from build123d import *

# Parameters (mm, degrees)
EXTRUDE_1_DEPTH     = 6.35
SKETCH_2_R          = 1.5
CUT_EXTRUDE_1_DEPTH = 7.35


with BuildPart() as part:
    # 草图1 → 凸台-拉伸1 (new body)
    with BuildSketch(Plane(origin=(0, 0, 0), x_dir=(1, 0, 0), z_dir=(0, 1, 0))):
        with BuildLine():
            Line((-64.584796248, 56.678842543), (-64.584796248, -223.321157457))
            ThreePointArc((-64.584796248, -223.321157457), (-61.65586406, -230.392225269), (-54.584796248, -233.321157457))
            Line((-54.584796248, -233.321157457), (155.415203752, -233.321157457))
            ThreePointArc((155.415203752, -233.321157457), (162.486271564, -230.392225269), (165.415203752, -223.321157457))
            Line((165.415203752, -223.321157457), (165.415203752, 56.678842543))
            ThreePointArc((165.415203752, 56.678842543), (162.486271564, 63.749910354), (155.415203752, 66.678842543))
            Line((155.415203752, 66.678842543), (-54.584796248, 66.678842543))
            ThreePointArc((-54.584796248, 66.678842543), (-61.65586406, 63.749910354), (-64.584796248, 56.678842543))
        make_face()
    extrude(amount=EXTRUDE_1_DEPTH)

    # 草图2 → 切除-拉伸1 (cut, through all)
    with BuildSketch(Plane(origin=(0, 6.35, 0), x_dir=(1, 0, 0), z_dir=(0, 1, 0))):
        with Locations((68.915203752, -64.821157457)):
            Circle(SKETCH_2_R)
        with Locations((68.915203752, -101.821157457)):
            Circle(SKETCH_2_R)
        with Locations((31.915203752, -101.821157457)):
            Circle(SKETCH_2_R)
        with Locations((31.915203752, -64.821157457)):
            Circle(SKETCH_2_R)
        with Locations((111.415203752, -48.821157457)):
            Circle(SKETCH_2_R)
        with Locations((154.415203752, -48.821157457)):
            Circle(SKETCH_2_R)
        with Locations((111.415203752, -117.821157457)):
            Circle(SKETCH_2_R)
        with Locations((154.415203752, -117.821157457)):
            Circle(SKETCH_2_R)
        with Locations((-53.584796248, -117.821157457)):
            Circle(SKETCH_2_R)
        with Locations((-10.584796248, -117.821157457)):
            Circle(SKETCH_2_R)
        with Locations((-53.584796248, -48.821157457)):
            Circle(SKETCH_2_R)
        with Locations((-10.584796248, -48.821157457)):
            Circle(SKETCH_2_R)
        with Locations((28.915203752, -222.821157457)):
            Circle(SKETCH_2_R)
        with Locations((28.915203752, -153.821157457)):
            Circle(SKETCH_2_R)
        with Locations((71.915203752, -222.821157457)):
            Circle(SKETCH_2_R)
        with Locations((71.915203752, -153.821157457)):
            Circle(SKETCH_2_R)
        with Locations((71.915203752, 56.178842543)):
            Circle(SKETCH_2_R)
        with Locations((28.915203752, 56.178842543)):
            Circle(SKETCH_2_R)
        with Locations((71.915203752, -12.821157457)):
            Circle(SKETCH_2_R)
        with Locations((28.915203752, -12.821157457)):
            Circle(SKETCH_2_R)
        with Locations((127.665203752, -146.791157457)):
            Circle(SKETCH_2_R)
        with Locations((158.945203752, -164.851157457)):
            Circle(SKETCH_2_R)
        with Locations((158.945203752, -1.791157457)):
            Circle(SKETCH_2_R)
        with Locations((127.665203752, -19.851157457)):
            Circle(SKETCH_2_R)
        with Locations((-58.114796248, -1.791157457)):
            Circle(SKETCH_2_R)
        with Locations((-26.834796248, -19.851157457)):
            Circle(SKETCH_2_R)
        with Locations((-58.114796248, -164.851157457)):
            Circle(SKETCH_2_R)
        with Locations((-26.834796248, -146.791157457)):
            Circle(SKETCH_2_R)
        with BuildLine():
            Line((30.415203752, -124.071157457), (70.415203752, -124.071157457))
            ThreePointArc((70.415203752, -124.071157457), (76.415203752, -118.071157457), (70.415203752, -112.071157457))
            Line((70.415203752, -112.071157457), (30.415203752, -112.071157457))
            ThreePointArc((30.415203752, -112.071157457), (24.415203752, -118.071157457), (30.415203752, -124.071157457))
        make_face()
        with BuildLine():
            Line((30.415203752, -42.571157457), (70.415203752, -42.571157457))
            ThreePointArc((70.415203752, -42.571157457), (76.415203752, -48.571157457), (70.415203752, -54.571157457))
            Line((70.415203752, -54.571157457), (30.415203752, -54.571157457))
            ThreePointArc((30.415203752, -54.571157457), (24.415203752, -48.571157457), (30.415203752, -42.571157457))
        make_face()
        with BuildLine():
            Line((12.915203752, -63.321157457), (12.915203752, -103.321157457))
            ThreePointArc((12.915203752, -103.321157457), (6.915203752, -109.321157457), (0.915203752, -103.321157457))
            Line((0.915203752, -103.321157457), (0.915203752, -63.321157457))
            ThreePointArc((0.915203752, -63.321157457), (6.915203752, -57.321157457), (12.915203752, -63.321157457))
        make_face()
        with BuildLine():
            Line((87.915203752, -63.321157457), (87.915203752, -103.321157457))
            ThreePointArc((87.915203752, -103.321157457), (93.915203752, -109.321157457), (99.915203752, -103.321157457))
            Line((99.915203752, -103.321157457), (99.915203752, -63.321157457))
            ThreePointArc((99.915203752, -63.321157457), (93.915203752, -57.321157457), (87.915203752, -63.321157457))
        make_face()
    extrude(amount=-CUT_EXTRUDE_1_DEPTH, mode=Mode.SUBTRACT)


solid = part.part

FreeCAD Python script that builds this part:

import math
import FreeCAD as App
import Part
import Sketcher
from FreeCAD import Vector
Q = App.Units.Quantity

doc = App.newDocument("Part")
body = doc.addObject("PartDesign::Body", "Body")

# Sketch on XZ plane
sketch1 = body.newObject("Sketcher::SketchObject", "Sketch")
sketch1.AttachmentSupport = (doc.getObject("XZ_Plane"), [""])
sketch1.MapMode = "FlatFace"
sketch1.addGeometry([
    Part.LineSegment(Vector(-65, -57, 0), Vector(-65, 223, 0)),  # 0
    Part.ArcOfCircle(Part.Circle(Vector(-55, 223, 0), Vector(0, 0, 1), 10), math.radians(90), math.radians(180)),  # 1
    Part.LineSegment(Vector(-55, 233, 0), Vector(155, 233, 0)),  # 2
    Part.ArcOfCircle(Part.Circle(Vector(155, 223, 0), Vector(0, 0, 1), 10), math.radians(0), math.radians(90)),  # 3
    Part.LineSegment(Vector(165, 223, 0), Vector(165, -57, 0)),  # 4
    Part.ArcOfCircle(Part.Circle(Vector(155, -57, 0), Vector(0, 0, 1), 10), math.radians(-90), math.radians(0)),  # 5
    Part.LineSegment(Vector(155, -67, 0), Vector(-55, -67, 0)),  # 6
    Part.ArcOfCircle(Part.Circle(Vector(-55, -57, 0), Vector(0, 0, 1), 10), math.radians(-180), math.radians(-90)),  # 7
], False)
sketch1.addConstraint([
    Sketcher.Constraint("Tangent", 0, 2, 1, 2),
    Sketcher.Constraint("Tangent", 1, 1, 2, 1),
    Sketcher.Constraint("Tangent", 2, 2, 3, 2),
    Sketcher.Constraint("Tangent", 3, 1, 4, 1),
    Sketcher.Constraint("Tangent", 4, 2, 5, 2),
    Sketcher.Constraint("Tangent", 5, 1, 6, 1),
    Sketcher.Constraint("Tangent", 6, 2, 7, 2),
    Sketcher.Constraint("Tangent", 7, 1, 0, 1),
    Sketcher.Constraint("Vertical", 0),
    Sketcher.Constraint("Horizontal", 2),
    Sketcher.Constraint("Vertical", 4),
    Sketcher.Constraint("Horizontal", 6),
    Sketcher.Constraint("Equal", 1, 3),
    Sketcher.Constraint("Equal", 3, 5),
    Sketcher.Constraint("Equal", 5, 7),
    Sketcher.Constraint("Radius", 1, Q("10 mm")),
    Sketcher.Constraint("DistanceX", 2, 1, 2, 2, Q("210 mm")),
    Sketcher.Constraint("DistanceY", 0, 1, 0, 2, Q("280 mm")),
    Sketcher.Constraint("DistanceX", 1, 3, -1, 1, Q("54.584796 mm")),
    Sketcher.Constraint("DistanceY", -1, 1, 1, 3, Q("223.321157 mm")),
])
pad1 = body.newObject("PartDesign::Pad", "Pad")
pad1.Profile = sketch1
pad1.Length = 6.35
pad1.Reversed = True

# Sketch on XZ plane
sketch2 = body.newObject("Sketcher::SketchObject", "Sketch001")
sketch2.AttachmentSupport = (doc.getObject("XZ_Plane"), [""])
sketch2.MapMode = "FlatFace"
sketch2.AttachmentOffset = App.Placement(Vector(0, 0, -6.35), App.Rotation())
sketch2.addGeometry([
    Part.Circle(Vector(68.9, 64.8, 0), Vector(0, 0, 1), 1.5),  # 0
    Part.Circle(Vector(68.9, 101.8, 0), Vector(0, 0, 1), 1.5),  # 1
    Part.Circle(Vector(31.9, 101.8, 0), Vector(0, 0, 1), 1.5),  # 2
    Part.Circle(Vector(31.9, 64.8, 0), Vector(0, 0, 1), 1.5),  # 3
    Part.Circle(Vector(111.4, 48.8, 0), Vector(0, 0, 1), 1.5),  # 4
    Part.Circle(Vector(154.4, 48.8, 0), Vector(0, 0, 1), 1.5),  # 5
    Part.Circle(Vector(111.4, 117.8, 0), Vector(0, 0, 1), 1.5),  # 6
    Part.Circle(Vector(154.4, 117.8, 0), Vector(0, 0, 1), 1.5),  # 7
    Part.Circle(Vector(-53.6, 117.8, 0), Vector(0, 0, 1), 1.5),  # 8
    Part.Circle(Vector(-10.6, 117.8, 0), Vector(0, 0, 1), 1.5),  # 9
    Part.Circle(Vector(-53.6, 48.8, 0), Vector(0, 0, 1), 1.5),  # 10
    Part.Circle(Vector(-10.6, 48.8, 0), Vector(0, 0, 1), 1.5),  # 11
    Part.Circle(Vector(28.9, 222.8, 0), Vector(0, 0, 1), 1.5),  # 12
    Part.Circle(Vector(28.9, 153.8, 0), Vector(0, 0, 1), 1.5),  # 13
    Part.Circle(Vector(71.9, 222.8, 0), Vector(0, 0, 1), 1.5),  # 14
    Part.Circle(Vector(71.9, 153.8, 0), Vector(0, 0, 1), 1.5),  # 15
    Part.Circle(Vector(71.9, -56.2, 0), Vector(0, 0, 1), 1.5),  # 16
    Part.Circle(Vector(28.9, -56.2, 0), Vector(0, 0, 1), 1.5),  # 17
    Part.Circle(Vector(71.9, 12.8, 0), Vector(0, 0, 1), 1.5),  # 18
    Part.Circle(Vector(28.9, 12.8, 0), Vector(0, 0, 1), 1.5),  # 19
    Part.Circle(Vector(127.7, 146.8, 0), Vector(0, 0, 1), 1.5),  # 20
    Part.Circle(Vector(158.9, 164.9, 0), Vector(0, 0, 1), 1.5),  # 21
    Part.Circle(Vector(158.9, 1.8, 0), Vector(0, 0, 1), 1.5),  # 22
    Part.Circle(Vector(127.7, 19.9, 0), Vector(0, 0, 1), 1.5),  # 23
    Part.Circle(Vector(-58.1, 1.8, 0), Vector(0, 0, 1), 1.5),  # 24
    Part.Circle(Vector(-26.8, 19.9, 0), Vector(0, 0, 1), 1.5),  # 25
    Part.Circle(Vector(-58.1, 164.9, 0), Vector(0, 0, 1), 1.5),  # 26
    Part.Circle(Vector(-26.8, 146.8, 0), Vector(0, 0, 1), 1.5),  # 27
    Part.LineSegment(Vector(30.4, 124.1, 0), Vector(70.4, 124.1, 0)),  # 28
    Part.ArcOfCircle(Part.Circle(Vector(70.4, 118.1, 0), Vector(0, 0, 1), 6), math.radians(-90), math.radians(90)),  # 29
    Part.LineSegment(Vector(70.4, 112.1, 0), Vector(30.4, 112.1, 0)),  # 30
    Part.ArcOfCircle(Part.Circle(Vector(30.4, 118.1, 0), Vector(0, 0, 1), 6), math.radians(90), math.radians(270)),  # 31
    Part.LineSegment(Vector(70.4, 42.6, 0), Vector(30.4, 42.6, 0)),  # 32
    Part.ArcOfCircle(Part.Circle(Vector(30.4, 48.6, 0), Vector(0, 0, 1), 6), math.radians(90), math.radians(270)),  # 33
    Part.LineSegment(Vector(30.4, 54.6, 0), Vector(70.4, 54.6, 0)),  # 34
    Part.ArcOfCircle(Part.Circle(Vector(70.4, 48.6, 0), Vector(0, 0, 1), 6), math.radians(-90), math.radians(90)),  # 35
    Part.LineSegment(Vector(12.9, 103.3, 0), Vector(12.9, 63.3, 0)),  # 36
    Part.ArcOfCircle(Part.Circle(Vector(6.9, 63.3, 0), Vector(0, 0, 1), 6), math.radians(180), math.radians(360)),  # 37
    Part.LineSegment(Vector(0.9, 63.3, 0), Vector(0.9, 103.3, 0)),  # 38
    Part.ArcOfCircle(Part.Circle(Vector(6.9, 103.3, 0), Vector(0, 0, 1), 6), math.radians(0), math.radians(180)),  # 39
    Part.LineSegment(Vector(87.9, 63.3, 0), Vector(87.9, 103.3, 0)),  # 40
    Part.ArcOfCircle(Part.Circle(Vector(93.9, 103.3, 0), Vector(0, 0, 1), 6), math.radians(0), math.radians(180)),  # 41
    Part.LineSegment(Vector(99.9, 103.3, 0), Vector(99.9, 63.3, 0)),  # 42
    Part.ArcOfCircle(Part.Circle(Vector(93.9, 63.3, 0), Vector(0, 0, 1), 6), math.radians(180), math.radians(360)),  # 43
], False)
sketch2.addConstraint([
    Sketcher.Constraint("Tangent", 28, 2, 29, 2),
    Sketcher.Constraint("Tangent", 29, 1, 30, 1),
    Sketcher.Constraint("Tangent", 30, 2, 31, 2),
    Sketcher.Constraint("Tangent", 31, 1, 28, 1),
    Sketcher.Constraint("Tangent", 32, 2, 33, 2),
    Sketcher.Constraint("Tangent", 33, 1, 34, 1),
    Sketcher.Constraint("Tangent", 34, 2, 35, 2),
    Sketcher.Constraint("Tangent", 35, 1, 32, 1),
    Sketcher.Constraint("Tangent", 36, 2, 37, 2),
    Sketcher.Constraint("Tangent", 37, 1, 38, 1),
    Sketcher.Constraint("Tangent", 38, 2, 39, 2),
    Sketcher.Constraint("Tangent", 39, 1, 36, 1),
    Sketcher.Constraint("Tangent", 40, 2, 41, 2),
    Sketcher.Constraint("Tangent", 41, 1, 42, 1),
    Sketcher.Constraint("Tangent", 42, 2, 43, 2),
    Sketcher.Constraint("Tangent", 43, 1, 40, 1),
    Sketcher.Constraint("Horizontal", 28),
    Sketcher.Constraint("Horizontal", 30),
    Sketcher.Constraint("Horizontal", 32),
    Sketcher.Constraint("Horizontal", 34),
    Sketcher.Constraint("Vertical", 36),
    Sketcher.Constraint("Vertical", 38),
    Sketcher.Constraint("Vertical", 40),
    Sketcher.Constraint("Vertical", 42),
    Sketcher.Constraint("Equal", 0, 1),
    Sketcher.Constraint("Equal", 1, 2),
    Sketcher.Constraint("Equal", 2, 3),
    Sketcher.Constraint("Equal", 3, 4),
    Sketcher.Constraint("Equal", 4, 5),
    Sketcher.Constraint("Equal", 5, 6),
    Sketcher.Constraint("Equal", 6, 7),
    Sketcher.Constraint("Equal", 7, 8),
    Sketcher.Constraint("Equal", 8, 9),
    Sketcher.Constraint("Equal", 9, 10),
    Sketcher.Constraint("Equal", 10, 11),
    Sketcher.Constraint("Equal", 11, 12),
    Sketcher.Constraint("Equal", 12, 13),
    Sketcher.Constraint("Equal", 13, 14),
    Sketcher.Constraint("Equal", 14, 15),
    Sketcher.Constraint("Equal", 15, 16),
    Sketcher.Constraint("Equal", 16, 17),
    Sketcher.Constraint("Equal", 17, 18),
    Sketcher.Constraint("Equal", 18, 19),
    Sketcher.Constraint("Equal", 19, 20),
    Sketcher.Constraint("Equal", 20, 21),
    Sketcher.Constraint("Equal", 21, 22),
    Sketcher.Constraint("Equal", 22, 23),
    Sketcher.Constraint("Equal", 23, 24),
    Sketcher.Constraint("Equal", 24, 25),
    Sketcher.Constraint("Equal", 25, 26),
    Sketcher.Constraint("Equal", 26, 27),
    Sketcher.Constraint("Equal", 31, 33),
    Sketcher.Constraint("Equal", 35, 37),
    Sketcher.Constraint("Equal", 39, 41),
    Sketcher.Constraint("Horizontal", 1, 3, 2, 3),
    Sketcher.Constraint("Horizontal", 0, 3, 3, 3),
    Sketcher.Constraint("Horizontal", 4, 3, 5, 3),
    Sketcher.Constraint("Horizontal", 6, 3, 7, 3),
    Sketcher.Constraint("Horizontal", 7, 3, 8, 3),
    Sketcher.Constraint("Horizontal", 8, 3, 9, 3),
    Sketcher.Constraint("Horizontal", 5, 3, 10, 3),
    Sketcher.Constraint("Horizontal", 10, 3, 11, 3),
    Sketcher.Constraint("Horizontal", 12, 3, 14, 3),
    Sketcher.Constraint("Horizontal", 13, 3, 15, 3),
    Sketcher.Constraint("Horizontal", 16, 3, 17, 3),
    Sketcher.Constraint("Horizontal", 18, 3, 19, 3),
    Sketcher.Constraint("Horizontal", 22, 3, 24, 3),
    Sketcher.Constraint("Horizontal", 23, 3, 25, 3),
    Sketcher.Constraint("Horizontal", 21, 3, 26, 3),
    Sketcher.Constraint("Horizontal", 20, 3, 27, 3),
    Sketcher.Constraint("Horizontal", 39, 3, 41, 3),
    Sketcher.Constraint("Horizontal", 37, 3, 43, 3),
    Sketcher.Constraint("Vertical", 0, 3, 1, 3),
    Sketcher.Constraint("Vertical", 2, 3, 3, 3),
    Sketcher.Constraint("Vertical", 4, 3, 6, 3),
    Sketcher.Constraint("Vertical", 5, 3, 7, 3),
    Sketcher.Constraint("Vertical", 8, 3, 10, 3),
    Sketcher.Constraint("Vertical", 9, 3, 11, 3),
    Sketcher.Constraint("Vertical", 12, 3, 13, 3),
    Sketcher.Constraint("Vertical", 14, 3, 15, 3),
    Sketcher.Constraint("Vertical", 15, 3, 16, 3),
    Sketcher.Constraint("Vertical", 13, 3, 17, 3),
    Sketcher.Constraint("Vertical", 16, 3, 18, 3),
    Sketcher.Constraint("Vertical", 17, 3, 19, 3),
    Sketcher.Constraint("Vertical", 21, 3, 22, 3),
    Sketcher.Constraint("Vertical", 20, 3, 23, 3),
    Sketcher.Constraint("Vertical", 24, 3, 26, 3),
    Sketcher.Constraint("Vertical", 25, 3, 27, 3),
    Sketcher.Constraint("Vertical", 31, 3, 33, 3),
    Sketcher.Constraint("Vertical", 29, 3, 35, 3),
    Sketcher.Constraint("Equal", 34, 36),
    Sketcher.Constraint("Diameter", 0, Q("3 mm")),
    Sketcher.Constraint("Radius", 29, Q("6 mm")),
    Sketcher.Constraint("DistanceX", 28, 1, 28, 2, Q("40 mm")),
    Sketcher.Constraint("DistanceY", 0, 3, 1, 3, Q("37 mm")),
    Sketcher.Constraint("DistanceX", 2, 3, 1, 3, Q("37 mm")),
    Sketcher.Constraint("DistanceY", 4, 3, 0, 3, Q("16 mm")),
    Sketcher.Constraint("DistanceX", 4, 3, 5, 3, Q("43 mm")),
    Sketcher.Constraint("DistanceY", 1, 3, 6, 3, Q("16 mm")),
    Sketcher.Constraint("DistanceX", 8, 3, 6, 3, Q("165 mm")),
    Sketcher.Constraint("DistanceX", 8, 3, 9, 3, Q("43 mm")),
    Sketcher.Constraint("DistanceY", 9, 3, 12, 3, Q("105 mm")),
    Sketcher.Constraint("DistanceX", 12, 3, 2, 3, Q("3 mm")),
    Sketcher.Constraint("DistanceY", 2, 3, 13, 3, Q("52 mm")),
    Sketcher.Constraint("DistanceX", 12, 3, 14, 3, Q("43 mm")),
    Sketcher.Constraint("DistanceY", 16, 3, 4, 3, Q("105 mm")),
    Sketcher.Constraint("DistanceY", 18, 3, 0, 3, Q("52 mm")),
    Sketcher.Constraint("DistanceX", 29, 3, 6, 3, Q("41 mm")),
    Sketcher.Constraint("DistanceX", 37, 3, 3, 3, Q("25 mm")),
    Sketcher.Constraint("DistanceX", 1, 3, 41, 3, Q("25 mm")),
    Sketcher.Constraint("DistanceX", 0, 3, 4, 3, Q("42.5 mm")),
    Sketcher.Constraint("DistanceY", 11, 3, 37, 3, Q("14.5 mm")),
    Sketcher.Constraint("DistanceX", 6, 3, 20, 3, Q("16.25 mm")),
    Sketcher.Constraint("DistanceY", 6, 3, 20, 3, Q("28.97 mm")),
    Sketcher.Constraint("DistanceX", 20, 3, 21, 3, Q("31.28 mm")),
    Sketcher.Constraint("DistanceY", 20, 3, 21, 3, Q("18.06 mm")),
    Sketcher.Constraint("DistanceY", 22, 3, 5, 3, Q("47.03 mm")),
    Sketcher.Constraint("DistanceY", 23, 3, 4, 3, Q("28.97 mm")),
    Sketcher.Constraint("DistanceX", 24, 3, 10, 3, Q("4.53 mm")),
    Sketcher.Constraint("DistanceX", 25, 3, 11, 3, Q("16.25 mm")),
    Sketcher.Constraint("DistanceY", 1, 3, 29, 3, Q("16.25 mm")),
    Sketcher.Constraint("DistanceY", 33, 3, 3, 3, Q("16.25 mm")),
    Sketcher.Constraint("DistanceX", -1, 1, 0, 3, Q("68.915204 mm")),
    Sketcher.Constraint("DistanceY", -1, 1, 0, 3, Q("64.821157 mm")),
])
pocket1 = body.newObject("PartDesign::Pocket", "Pocket")
pocket1.Profile = sketch2
pocket1.Type = "ThroughAll"
pocket1.Reversed = True

doc.recompute()
